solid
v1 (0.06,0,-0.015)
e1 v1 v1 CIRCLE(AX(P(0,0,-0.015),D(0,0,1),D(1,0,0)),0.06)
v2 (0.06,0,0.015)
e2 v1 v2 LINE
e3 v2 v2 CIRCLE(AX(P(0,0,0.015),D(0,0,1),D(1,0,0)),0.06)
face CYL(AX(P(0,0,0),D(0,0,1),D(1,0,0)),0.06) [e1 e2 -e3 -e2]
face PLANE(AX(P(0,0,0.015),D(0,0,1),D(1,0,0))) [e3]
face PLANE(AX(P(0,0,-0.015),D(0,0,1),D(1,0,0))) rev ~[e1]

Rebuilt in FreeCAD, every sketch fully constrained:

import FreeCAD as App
import Part
import Sketcher

V = App.Vector

doc = App.newDocument("Part")
body = doc.addObject("PartDesign::Body", "Body")

# Sketch on XY plane
sketch1 = doc.addObject("Sketcher::SketchObject", "Sketch")
body.addObject(sketch1)
sketch1.AttachmentSupport = (doc.XY_Plane, [""])
sketch1.MapMode = "FlatFace"
sketch1.addGeometry(Part.Circle(V(0, 0, 0), V(0, 0, 1), 0.06), False)
sketch1.addConstraint(Sketcher.Constraint("Coincident", 0, 3, -1, 1))
sketch1.addConstraint(Sketcher.Constraint("Diameter", 0, 0.12))
pad1 = doc.addObject("PartDesign::Pad", "Pad")
body.addObject(pad1)
pad1.Profile = sketch1
pad1.Length = 0.03
pad1.Midplane = True

doc.recompute()
